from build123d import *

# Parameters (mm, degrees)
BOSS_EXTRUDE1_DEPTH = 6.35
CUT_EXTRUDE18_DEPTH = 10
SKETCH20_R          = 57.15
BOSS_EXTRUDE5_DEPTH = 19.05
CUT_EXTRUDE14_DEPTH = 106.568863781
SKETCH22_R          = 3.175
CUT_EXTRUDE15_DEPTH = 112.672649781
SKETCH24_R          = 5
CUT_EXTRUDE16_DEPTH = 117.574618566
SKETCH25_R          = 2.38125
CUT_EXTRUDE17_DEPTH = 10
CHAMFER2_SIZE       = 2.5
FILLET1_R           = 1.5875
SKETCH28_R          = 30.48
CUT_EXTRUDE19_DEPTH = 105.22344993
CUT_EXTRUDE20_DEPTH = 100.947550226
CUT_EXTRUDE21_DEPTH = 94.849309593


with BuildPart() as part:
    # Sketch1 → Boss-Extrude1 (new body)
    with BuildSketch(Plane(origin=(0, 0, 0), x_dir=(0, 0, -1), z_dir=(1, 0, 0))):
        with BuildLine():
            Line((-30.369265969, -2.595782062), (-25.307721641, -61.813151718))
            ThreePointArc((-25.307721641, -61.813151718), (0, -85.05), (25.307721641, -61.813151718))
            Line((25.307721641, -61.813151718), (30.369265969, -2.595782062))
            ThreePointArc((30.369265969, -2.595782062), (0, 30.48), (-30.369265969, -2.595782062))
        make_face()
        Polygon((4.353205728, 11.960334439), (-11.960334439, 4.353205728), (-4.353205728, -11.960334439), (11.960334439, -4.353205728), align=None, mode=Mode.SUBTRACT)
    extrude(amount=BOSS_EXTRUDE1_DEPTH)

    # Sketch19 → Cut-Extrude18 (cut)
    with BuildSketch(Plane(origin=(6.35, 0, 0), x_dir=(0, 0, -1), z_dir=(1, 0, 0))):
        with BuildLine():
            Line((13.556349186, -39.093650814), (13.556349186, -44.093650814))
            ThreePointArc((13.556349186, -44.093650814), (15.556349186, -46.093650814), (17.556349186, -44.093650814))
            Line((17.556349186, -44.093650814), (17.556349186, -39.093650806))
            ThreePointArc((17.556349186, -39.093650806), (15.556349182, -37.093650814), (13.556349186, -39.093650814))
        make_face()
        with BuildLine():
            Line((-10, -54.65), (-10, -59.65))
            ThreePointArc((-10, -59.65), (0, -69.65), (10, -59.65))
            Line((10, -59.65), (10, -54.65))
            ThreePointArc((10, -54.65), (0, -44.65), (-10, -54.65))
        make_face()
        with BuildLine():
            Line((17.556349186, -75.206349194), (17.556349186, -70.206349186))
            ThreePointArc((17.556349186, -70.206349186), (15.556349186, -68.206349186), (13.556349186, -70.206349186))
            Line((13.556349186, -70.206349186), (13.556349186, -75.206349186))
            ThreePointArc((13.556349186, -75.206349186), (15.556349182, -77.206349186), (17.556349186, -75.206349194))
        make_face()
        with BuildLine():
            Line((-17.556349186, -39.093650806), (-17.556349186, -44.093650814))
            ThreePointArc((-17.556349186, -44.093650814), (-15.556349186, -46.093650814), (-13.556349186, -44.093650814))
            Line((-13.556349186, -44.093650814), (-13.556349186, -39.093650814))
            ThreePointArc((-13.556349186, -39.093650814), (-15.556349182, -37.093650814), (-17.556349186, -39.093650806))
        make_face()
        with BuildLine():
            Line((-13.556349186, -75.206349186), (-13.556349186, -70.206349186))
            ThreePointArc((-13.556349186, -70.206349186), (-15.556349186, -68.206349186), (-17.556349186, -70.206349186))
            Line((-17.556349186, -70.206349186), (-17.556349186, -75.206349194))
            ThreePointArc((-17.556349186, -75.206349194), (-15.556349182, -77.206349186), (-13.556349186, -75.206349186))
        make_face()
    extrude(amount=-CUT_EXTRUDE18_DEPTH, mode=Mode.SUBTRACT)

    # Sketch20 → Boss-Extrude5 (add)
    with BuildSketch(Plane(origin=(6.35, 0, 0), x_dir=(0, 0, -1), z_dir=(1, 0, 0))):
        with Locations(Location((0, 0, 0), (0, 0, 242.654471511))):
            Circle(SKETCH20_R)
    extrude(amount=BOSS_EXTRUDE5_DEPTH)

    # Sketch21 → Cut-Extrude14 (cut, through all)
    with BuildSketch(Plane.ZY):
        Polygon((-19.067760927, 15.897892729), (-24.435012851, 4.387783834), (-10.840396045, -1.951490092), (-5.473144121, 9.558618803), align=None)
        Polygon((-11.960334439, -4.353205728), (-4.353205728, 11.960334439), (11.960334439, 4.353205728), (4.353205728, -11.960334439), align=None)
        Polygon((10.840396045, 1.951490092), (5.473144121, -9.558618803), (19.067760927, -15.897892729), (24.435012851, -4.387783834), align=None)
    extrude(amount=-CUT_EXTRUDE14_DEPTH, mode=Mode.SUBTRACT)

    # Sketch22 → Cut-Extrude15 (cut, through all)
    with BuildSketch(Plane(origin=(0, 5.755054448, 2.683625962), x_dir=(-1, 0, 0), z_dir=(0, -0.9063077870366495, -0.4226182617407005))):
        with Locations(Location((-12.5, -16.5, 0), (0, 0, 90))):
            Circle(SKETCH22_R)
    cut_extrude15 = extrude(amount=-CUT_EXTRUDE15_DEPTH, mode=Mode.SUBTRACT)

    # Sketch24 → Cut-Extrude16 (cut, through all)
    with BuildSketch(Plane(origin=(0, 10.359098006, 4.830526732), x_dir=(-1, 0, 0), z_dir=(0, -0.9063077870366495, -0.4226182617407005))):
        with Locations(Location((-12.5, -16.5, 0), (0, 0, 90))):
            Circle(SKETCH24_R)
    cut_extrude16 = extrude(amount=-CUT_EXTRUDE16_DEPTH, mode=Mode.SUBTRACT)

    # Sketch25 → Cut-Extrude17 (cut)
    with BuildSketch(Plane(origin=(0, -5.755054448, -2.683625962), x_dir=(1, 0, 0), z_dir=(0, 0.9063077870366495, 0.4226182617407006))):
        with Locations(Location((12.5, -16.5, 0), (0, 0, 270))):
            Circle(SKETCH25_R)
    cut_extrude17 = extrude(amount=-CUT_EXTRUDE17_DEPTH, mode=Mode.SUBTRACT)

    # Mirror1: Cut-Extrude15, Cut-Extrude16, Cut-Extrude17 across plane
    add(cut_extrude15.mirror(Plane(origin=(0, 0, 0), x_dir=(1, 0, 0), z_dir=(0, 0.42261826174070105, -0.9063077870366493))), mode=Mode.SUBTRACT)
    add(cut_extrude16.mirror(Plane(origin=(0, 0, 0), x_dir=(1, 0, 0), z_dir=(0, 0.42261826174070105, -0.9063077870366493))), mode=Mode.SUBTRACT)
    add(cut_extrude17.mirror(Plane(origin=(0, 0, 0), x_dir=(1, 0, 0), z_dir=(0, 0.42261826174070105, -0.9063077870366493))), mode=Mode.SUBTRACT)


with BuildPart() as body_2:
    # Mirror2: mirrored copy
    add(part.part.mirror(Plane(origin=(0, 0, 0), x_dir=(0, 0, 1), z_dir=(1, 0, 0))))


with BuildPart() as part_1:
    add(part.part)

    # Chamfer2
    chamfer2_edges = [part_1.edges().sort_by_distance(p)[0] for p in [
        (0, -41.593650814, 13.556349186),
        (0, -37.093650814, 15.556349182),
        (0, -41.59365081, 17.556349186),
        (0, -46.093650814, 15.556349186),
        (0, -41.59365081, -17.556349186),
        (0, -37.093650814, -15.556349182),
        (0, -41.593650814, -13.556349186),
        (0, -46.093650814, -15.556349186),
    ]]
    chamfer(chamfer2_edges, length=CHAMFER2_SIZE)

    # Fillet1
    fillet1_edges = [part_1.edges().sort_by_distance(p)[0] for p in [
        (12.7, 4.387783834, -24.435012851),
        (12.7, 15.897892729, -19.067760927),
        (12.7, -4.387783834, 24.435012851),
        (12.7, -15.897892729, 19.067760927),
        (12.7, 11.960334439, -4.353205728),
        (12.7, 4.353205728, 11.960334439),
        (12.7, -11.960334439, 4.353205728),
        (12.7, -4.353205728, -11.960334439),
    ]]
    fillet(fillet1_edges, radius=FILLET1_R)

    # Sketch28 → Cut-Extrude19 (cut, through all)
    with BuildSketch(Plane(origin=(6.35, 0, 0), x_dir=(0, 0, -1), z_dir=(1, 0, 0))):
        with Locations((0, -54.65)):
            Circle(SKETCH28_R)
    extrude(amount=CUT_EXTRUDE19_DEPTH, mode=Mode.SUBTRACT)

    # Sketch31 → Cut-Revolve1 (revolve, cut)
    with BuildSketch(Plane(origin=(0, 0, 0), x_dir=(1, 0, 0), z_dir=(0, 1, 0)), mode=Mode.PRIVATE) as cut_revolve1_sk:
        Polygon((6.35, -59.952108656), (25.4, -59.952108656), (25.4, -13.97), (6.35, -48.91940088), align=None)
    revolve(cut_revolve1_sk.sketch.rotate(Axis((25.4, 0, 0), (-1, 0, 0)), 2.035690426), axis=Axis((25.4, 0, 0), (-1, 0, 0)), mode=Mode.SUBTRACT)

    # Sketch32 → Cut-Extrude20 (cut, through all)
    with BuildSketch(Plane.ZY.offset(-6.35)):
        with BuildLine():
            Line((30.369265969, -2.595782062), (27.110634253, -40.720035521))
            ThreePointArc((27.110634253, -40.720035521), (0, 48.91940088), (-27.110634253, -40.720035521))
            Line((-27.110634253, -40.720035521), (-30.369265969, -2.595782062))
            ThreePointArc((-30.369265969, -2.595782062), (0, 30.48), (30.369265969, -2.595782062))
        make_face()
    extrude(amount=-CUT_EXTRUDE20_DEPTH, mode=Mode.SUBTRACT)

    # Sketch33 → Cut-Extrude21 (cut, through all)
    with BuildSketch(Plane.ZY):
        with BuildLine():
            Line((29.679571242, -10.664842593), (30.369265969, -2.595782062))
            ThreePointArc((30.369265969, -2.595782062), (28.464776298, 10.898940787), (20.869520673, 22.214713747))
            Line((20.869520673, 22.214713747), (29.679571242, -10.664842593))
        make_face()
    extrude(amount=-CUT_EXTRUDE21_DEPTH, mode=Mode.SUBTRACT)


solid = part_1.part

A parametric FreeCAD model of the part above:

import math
import FreeCAD as App
import Part
import Sketcher
Q = App.Units.Quantity


def edges_at(feature, points):
    """Names of the edges that pass closest to the given points."""
    edges = feature.Shape.Edges
    near = lambda p: min(range(len(edges)), key=lambda i: edges[i].distToShape(Part.Vertex(*p))[0])
    return sorted({f"Edge{near(p) + 1}" for p in points})


def add_polygon(sketch, points):
    """Adds a closed chain of lines whose ends are joined by coincident constraints."""
    first, n = sketch.GeometryCount, len(points)
    for a, b in zip(points, points[1:] + points[:1]):
        sketch.addGeometry(Part.LineSegment(App.Vector(*a, 0), App.Vector(*b, 0)), False)
    for i in range(n):
        sketch.addConstraint(Sketcher.Constraint("Coincident", first + i, 2, first + (i + 1) % n, 1))

doc = App.newDocument("Part")
params = doc.addObject("Spreadsheet::Sheet", "Params")
for row, (alias, value) in enumerate([
    ("sketch1_radius", "1 in"),
    ("sketch1_radius2", "1.2 in"),
    ("pad1_length", "0.25 in"),
    ("pocket1_length", "10 mm"),
    ("sketch3_diameter", "4.5 in"),
    ("pad2_length", "0.75 in"),
    ("sketch4_length", "0.5 in"),
    ("sketch5_diameter", "0.25 in"),
    ("sketch7_diameter", "0.1875 in"),
    ("pocket5_length", "10 mm"),
    ("chamfer_size", "2.5 mm"),
    ("fillet_radius", "0.0625 in"),
    ("sketch8_diameter", "2.4 in"),
    ("sketch9_width", "0.75 in"),
    ("groove_angle", "360 deg"),
    ("sketch10_radius", "1.2 in"),
    ("sketch11_radius", "1.2 in"),
], start=1):
    params.set(f"A{row}", alias)
    params.set(f"B{row}", "=" + value)
    params.setAlias(f"B{row}", alias)

body = doc.addObject("PartDesign::Body", "Body")

# Sketch on YZ plane
sketch1 = body.newObject("Sketcher::SketchObject", "Sketch")
sketch1.AttachmentSupport = (doc.getObject("YZ_Plane"), [""])
sketch1.MapMode = "FlatFace"
sketch1.addGeometry(Part.LineSegment(App.Vector(-3, 30, 0), App.Vector(-62, 25, 0)), False)  # 0
sketch1.addGeometry(Part.ArcOfCircle(Part.Circle(App.Vector(-60, 0, 0), App.Vector(0, 0, 1), 25), math.radians(95), math.radians(265)), False)  # 1
sketch1.addGeometry(Part.LineSegment(App.Vector(-62, -25, 0), App.Vector(-3, -30, 0)), False)  # 2
sketch1.addGeometry(Part.ArcOfCircle(Part.Circle(App.Vector(0, 0, 0), App.Vector(0, 0, 1), 30), math.radians(-95), math.radians(95)), False)  # 3
add_polygon(sketch1, [(4, 12), (12, -4), (-4, -12), (-12, 4)])  # lines 4-7
sketch1.addConstraint(Sketcher.Constraint("Tangent", 0, 2, 1, 1))
sketch1.addConstraint(Sketcher.Constraint("Tangent", 1, 2, 2, 1))
sketch1.addConstraint(Sketcher.Constraint("Tangent", 2, 2, 3, 1))
sketch1.addConstraint(Sketcher.Constraint("Tangent", 3, 2, 0, 1))
sketch1.addConstraint(Sketcher.Constraint("Coincident", 3, 3, -1, 1))
sketch1.addConstraint(Sketcher.Constraint("Symmetric", 4, 2, 6, 2, -1, 1))
sketch1.addConstraint(Sketcher.Constraint("Symmetric", 5, 2, 7, 2, -1, 1))
sketch1.addConstraint(Sketcher.Constraint("PointOnObject", 1, 3, -1))
sketch1.addConstraint(Sketcher.Constraint("Perpendicular", 4, 5))
sketch1.addConstraint(Sketcher.Constraint("Equal", 4, 5))
sketch1.addConstraint(Sketcher.Constraint("Radius", 1, Q("1 in")))
sketch1.addConstraint(Sketcher.Constraint("Radius", 3, Q("1.2 in")))
sketch1.addConstraint(Sketcher.Constraint("Angle", 4, Q("-65 deg")))
sketch1.addConstraint(Sketcher.Constraint("Distance", 4, 18.0))
sketch1.addConstraint(Sketcher.Constraint("DistanceX", 1, 3, -1, 1, 59.65))
sketch1.setExpression("Constraints[14]", "Params.sketch1_radius")
sketch1.setExpression("Constraints[15]", "Params.sketch1_radius2")
pad1 = body.newObject("PartDesign::Pad", "Pad")
pad1.Profile = sketch1
pad1.setExpression("Length", "Params.pad1_length")

# Sketch on YZ plane
sketch2 = body.newObject("Sketcher::SketchObject", "Sketch001")
sketch2.AttachmentSupport = (doc.getObject("YZ_Plane"), [""])
sketch2.MapMode = "FlatFace"
sketch2.AttachmentOffset = App.Placement(App.Vector(0, 0, 0.25 * 25.4), App.Rotation())
sketch2.addGeometry(Part.LineSegment(App.Vector(-39.1, -13.6, 0), App.Vector(-44.1, -13.6, 0)), False)
sketch2.addGeometry(Part.ArcOfCircle(Part.Circle(App.Vector(-44.1, -15.6, 0), App.Vector(0, 0, 1), 2), math.radians(90), math.radians(270)), False)
sketch2.addGeometry(Part.LineSegment(App.Vector(-44.1, -17.6, 0), App.Vector(-39.1, -17.6, 0)), False)
sketch2.addGeometry(Part.ArcOfCircle(Part.Circle(App.Vector(-39.1, -15.6, 0), App.Vector(0, 0, 1), 2), math.radians(-90), math.radians(90)), False)
sketch2.addGeometry(Part.LineSegment(App.Vector(-54.6, 10, 0), App.Vector(-59.6, 10, 0)), False)
sketch2.addGeometry(Part.ArcOfCircle(Part.Circle(App.Vector(-59.6, 0, 0), App.Vector(0, 0, 1), 10), math.radians(90), math.radians(270)), False)
sketch2.addGeometry(Part.LineSegment(App.Vector(-59.6, -10, 0), App.Vector(-54.6, -10, 0)), False)
sketch2.addGeometry(Part.ArcOfCircle(Part.Circle(App.Vector(-54.6, 0, 0), App.Vector(0, 0, 1), 10), math.radians(-90), math.radians(90)), False)
sketch2.addGeometry(Part.LineSegment(App.Vector(-75.2, -17.6, 0), App.Vector(-70.2, -17.6, 0)), False)
sketch2.addGeometry(Part.ArcOfCircle(Part.Circle(App.Vector(-70.2, -15.6, 0), App.Vector(0, 0, 1), 2), math.radians(-90), math.radians(90)), False)
sketch2.addGeometry(Part.LineSegment(App.Vector(-70.2, -13.6, 0), App.Vector(-75.2, -13.6, 0)), False)
sketch2.addGeometry(Part.ArcOfCircle(Part.Circle(App.Vector(-75.2, -15.6, 0), App.Vector(0, 0, 1), 2), math.radians(90), math.radians(270)), False)
sketch2.addGeometry(Part.LineSegment(App.Vector(-39.1, 17.6, 0), App.Vector(-44.1, 17.6, 0)), False)
sketch2.addGeometry(Part.ArcOfCircle(Part.Circle(App.Vector(-44.1, 15.6, 0), App.Vector(0, 0, 1), 2), math.radians(90), math.radians(270)), False)
sketch2.addGeometry(Part.LineSegment(App.Vector(-44.1, 13.6, 0), App.Vector(-39.1, 13.6, 0)), False)
sketch2.addGeometry(Part.ArcOfCircle(Part.Circle(App.Vector(-39.1, 15.6, 0), App.Vector(0, 0, 1), 2), math.radians(-90), math.radians(90)), False)
sketch2.addGeometry(Part.LineSegment(App.Vector(-75.2, 13.6, 0), App.Vector(-70.2, 13.6, 0)), False)
sketch2.addGeometry(Part.ArcOfCircle(Part.Circle(App.Vector(-70.2, 15.6, 0), App.Vector(0, 0, 1), 2), math.radians(-90), math.radians(90)), False)
sketch2.addGeometry(Part.LineSegment(App.Vector(-70.2, 17.6, 0), App.Vector(-75.2, 17.6, 0)), False)
sketch2.addGeometry(Part.ArcOfCircle(Part.Circle(App.Vector(-75.2, 15.6, 0), App.Vector(0, 0, 1), 2), math.radians(90), math.radians(270)), False)
sketch2.addConstraint(Sketcher.Constraint("Tangent", 0, 2, 1, 1))
sketch2.addConstraint(Sketcher.Constraint("Tangent", 1, 2, 2, 1))
sketch2.addConstraint(Sketcher.Constraint("Tangent", 2, 2, 3, 1))
sketch2.addConstraint(Sketcher.Constraint("Tangent", 3, 2, 0, 1))
sketch2.addConstraint(Sketcher.Constraint("Tangent", 4, 2, 5, 1))
sketch2.addConstraint(Sketcher.Constraint("Tangent", 5, 2, 6, 1))
sketch2.addConstraint(Sketcher.Constraint("Tangent", 6, 2, 7, 1))
sketch2.addConstraint(Sketcher.Constraint("Tangent", 7, 2, 4, 1))
sketch2.addConstraint(Sketcher.Constraint("Tangent", 8, 2, 9, 1))
sketch2.addConstraint(Sketcher.Constraint("Tangent", 9, 2, 10, 1))
sketch2.addConstraint(Sketcher.Constraint("Tangent", 10, 2, 11, 1))
sketch2.addConstraint(Sketcher.Constraint("Tangent", 11, 2, 8, 1))
sketch2.addConstraint(Sketcher.Constraint("Tangent", 12, 2, 13, 1))
sketch2.addConstraint(Sketcher.Constraint("Tangent", 13, 2, 14, 1))
sketch2.addConstraint(Sketcher.Constraint("Tangent", 14, 2, 15, 1))
sketch2.addConstraint(Sketcher.Constraint("Tangent", 15, 2, 12, 1))
sketch2.addConstraint(Sketcher.Constraint("Tangent", 16, 2, 17, 1))
sketch2.addConstraint(Sketcher.Constraint("Tangent", 17, 2, 18, 1))
sketch2.addConstraint(Sketcher.Constraint("Tangent", 18, 2, 19, 1))
sketch2.addConstraint(Sketcher.Constraint("Tangent", 19, 2, 16, 1))
sketch2.addConstraint(Sketcher.Constraint("Horizontal", 0))
sketch2.addConstraint(Sketcher.Constraint("Horizontal", 2))
sketch2.addConstraint(Sketcher.Constraint("Horizontal", 4))
sketch2.addConstraint(Sketcher.Constraint("Horizontal", 6))
sketch2.addConstraint(Sketcher.Constraint("Horizontal", 8))
sketch2.addConstraint(Sketcher.Constraint("Horizontal", 10))
sketch2.addConstraint(Sketcher.Constraint("Horizontal", 12))
sketch2.addConstraint(Sketcher.Constraint("Horizontal", 14))
sketch2.addConstraint(Sketcher.Constraint("Horizontal", 16))
sketch2.addConstraint(Sketcher.Constraint("Horizontal", 18))
sketch2.addConstraint(Sketcher.Constraint("Equal", 3, 9))
sketch2.addConstraint(Sketcher.Constraint("Equal", 11, 13))
sketch2.addConstraint(Sketcher.Constraint("Equal", 15, 17))
sketch2.addConstraint(Sketcher.Constraint("Symmetric", 1, 3, 13, 3, -1))
sketch2.addConstraint(Sketcher.Constraint("Symmetric", 9, 3, 17, 3, -1))
sketch2.addConstraint(Sketcher.Constraint("PointOnObject", 5, 3, -1))
sketch2.addConstraint(Sketcher.Constraint("Horizontal", 3, 3, 9, 3))
sketch2.addConstraint(Sketcher.Constraint("Vertical", 3, 3, 15, 3))
sketch2.addConstraint(Sketcher.Constraint("Vertical", 11, 3, 19, 3))
sketch2.addConstraint(Sketcher.Constraint("Equal", 2, 4))
sketch2.addConstraint(Sketcher.Constraint("Equal", 6, 8))
sketch2.addConstraint(Sketcher.Constraint("Radius", 1, 2.0))
sketch2.addConstraint(Sketcher.Constraint("Radius", 5, 10.0))
sketch2.addConstraint(Sketcher.Constraint("DistanceX", 0, 2, 0, 1, 5.0))
sketch2.addConstraint(Sketcher.Constraint("DistanceX", 5, 3, -1, 1, 59.65))
sketch2.addConstraint(Sketcher.Constraint("DistanceX", 9, 3, 1, 3, 26.112698))
sketch2.addConstraint(Sketcher.Constraint("DistanceY", 1, 3, 13, 3, 31.112698))
sketch2.addConstraint(Sketcher.Constraint("DistanceX", 1, 3, -1, 1, 44.093651))
pocket1 = body.newObject("PartDesign::Pocket", "Pocket")
pocket1.Profile = sketch2
pocket1.setExpression("Length", "Params.pocket1_length")

# Sketch on YZ plane
sketch3 = body.newObject("Sketcher::SketchObject", "Sketch002")
sketch3.AttachmentSupport = (doc.getObject("YZ_Plane"), [""])
sketch3.MapMode = "FlatFace"
sketch3.AttachmentOffset = App.Placement(App.Vector(0, 0, 0.25 * 25.4), App.Rotation())
sketch3.addGeometry(Part.Circle(App.Vector(0, 0, 0), App.Vector(0, 0, 1), 57), False)
sketch3.addConstraint(Sketcher.Constraint("Coincident", 0, 3, -1, 1))
sketch3.addConstraint(Sketcher.Constraint("Diameter", 0, Q("4.5 in")))
sketch3.setExpression("Constraints[1]", "Params.sketch3_diameter")
pad2 = body.newObject("PartDesign::Pad", "Pad001")
pad2.Profile = sketch3
pad2.setExpression("Length", "Params.pad2_length")

# Sketch on YZ plane
sketch4 = body.newObject("Sketcher::SketchObject", "Sketch003")
sketch4.AttachmentSupport = (doc.getObject("YZ_Plane"), [""])
sketch4.MapMode = "FlatFace"
add_polygon(sketch4, [(15.9, -19.1), (4.4, -24.4), (-2, -10.8), (-4.4, -12), (-12, 4.4), (-9.6, 5.5), (-15.9, 19.1), (-4.4, 24.4), (2, 10.8), (4.4, 12), (12, -4.4), (9.6, -5.5)])  # lines 0-11
sketch4.addConstraint(Sketcher.Constraint("Symmetric", 0, 2, 6, 2, -1, 1))
sketch4.addConstraint(Sketcher.Constraint("Symmetric", 1, 2, 7, 2, -1, 1))
sketch4.addConstraint(Sketcher.Constraint("Symmetric", 2, 2, 8, 2, -1, 1))
sketch4.addConstraint(Sketcher.Constraint("Symmetric", 3, 2, 9, 2, -1, 1))
sketch4.addConstraint(Sketcher.Constraint("Symmetric", 4, 2, 10, 2, -1, 1))
sketch4.addConstraint(Sketcher.Constraint("Symmetric", 5, 2, 11, 2, -1, 1))
sketch4.addConstraint(Sketcher.Constraint("Perpendicular", 0, 1))
sketch4.addConstraint(Sketcher.Constraint("Perpendicular", 1, 2))
sketch4.addConstraint(Sketcher.Constraint("Perpendicular", 2, 3))
sketch4.addConstraint(Sketcher.Constraint("Perpendicular", 3, 4))
sketch4.addConstraint(Sketcher.Constraint("Perpendicular", 4, 5))
sketch4.addConstraint(Sketcher.Constraint("Equal", 2, 4))
sketch4.addConstraint(Sketcher.Constraint("Equal", 1, 5))
sketch4.addConstraint(Sketcher.Constraint("Angle", 0, Q("-155 deg")))
sketch4.addConstraint(Sketcher.Constraint("Distance", 0, Q("0.5 in")))
sketch4.addConstraint(Sketcher.Constraint("Distance", 1, 15.0))
sketch4.addConstraint(Sketcher.Constraint("Distance", 2, 2.65))
sketch4.addConstraint(Sketcher.Constraint("Distance", 3, 18.0))
sketch4.setExpression("Constraints[26]", "Params.sketch4_length")
pocket2 = body.newObject("PartDesign::Pocket", "Pocket001")
pocket2.Profile = sketch4
pocket2.Type = "ThroughAll"
pocket2.Reversed = True

# Sketch on an angled plane
sketch5 = body.newObject("Sketcher::SketchObject", "Sketch004")
sketch5.Placement = App.Placement(App.Vector(0, 5.755054, 2.683626), App.Rotation(App.Vector(-1, 0, 0), App.Vector(0, 0.422618262, -0.906307787), App.Vector(0, -0.906307787, -0.422618262), "ZXY"))
sketch5.addGeometry(Part.Circle(App.Vector(-12.5, -16.5, 0), App.Vector(0, 0, 1), 3.2), False)
sketch5.addConstraint(Sketcher.Constraint("Diameter", 0, Q("0.25 in")))
sketch5.addConstraint(Sketcher.Constraint("DistanceX", 0, 3, -1, 1, 12.5))
sketch5.addConstraint(Sketcher.Constraint("DistanceY", 0, 3, -1, 1, 16.5))
sketch5.setExpression("Constraints[0]", "Params.sketch5_diameter")
pocket3 = body.newObject("PartDesign::Pocket", "Pocket002")
pocket3.Profile = sketch5
pocket3.Type = "ThroughAll"

# Sketch on an angled plane
sketch6 = body.newObject("Sketcher::SketchObject", "Sketch005")
sketch6.Placement = App.Placement(App.Vector(0, 10.359098, 4.830527), App.Rotation(App.Vector(-1, 0, 0), App.Vector(0, 0.422618262, -0.906307787), App.Vector(0, -0.906307787, -0.422618262), "ZXY"))
sketch6.addGeometry(Part.Circle(App.Vector(-12, -17, 0), App.Vector(0, 0, 1), 5), False)
sketch6.addConstraint(Sketcher.Constraint("Diameter", 0, 10.0))
sketch6.addConstraint(Sketcher.Constraint("DistanceX", 0, 3, -1, 1, 12.5))
sketch6.addConstraint(Sketcher.Constraint("DistanceY", 0, 3, -1, 1, 16.5))
pocket4 = body.newObject("PartDesign::Pocket", "Pocket003")
pocket4.Profile = sketch6
pocket4.Type = "ThroughAll"

# Sketch on an angled plane
sketch7 = body.newObject("Sketcher::SketchObject", "Sketch006")
sketch7.Placement = App.Placement(App.Vector(0, -5.755054, -2.683626), App.Rotation(App.Vector(1, 0, 0), App.Vector(0, 0.422618262, -0.906307787), App.Vector(0, 0.906307787, 0.422618262), "ZXY"))
sketch7.addGeometry(Part.Circle(App.Vector(12.5, -16.5, 0), App.Vector(0, 0, 1), 2.4), False)
sketch7.addConstraint(Sketcher.Constraint("Diameter", 0, Q("0.1875 in")))
sketch7.addConstraint(Sketcher.Constraint("DistanceX", -1, 1, 0, 3, 12.5))
sketch7.addConstraint(Sketcher.Constraint("DistanceY", 0, 3, -1, 1, 16.5))
sketch7.setExpression("Constraints[0]", "Params.sketch7_diameter")
pocket5 = body.newObject("PartDesign::Pocket", "Pocket004")
pocket5.Profile = sketch7
pocket5.setExpression("Length", "Params.pocket5_length")
doc.recompute()

datumplane = body.newObject("PartDesign::Plane", "DatumPlane")
datumplane.Placement = App.Placement(App.Vector(0, 0, 0), App.Rotation(App.Vector(0, -0.906307787, -0.422618262), App.Vector(-1, 0, 0), App.Vector(0, 0.422618262, -0.906307787), "ZXY"))
mirrored = body.newObject("PartDesign::Mirrored", "Mirrored")
mirrored.Originals = [pocket3, pocket4, pocket5]
mirrored.MirrorPlane = (datumplane, [""])
body.Tip = mirrored
body2 = doc.addObject("PartDesign::Body", "Body001")
doc.recompute()

mirroring = doc.addObject("Part::Mirroring", "Mirroring")
mirroring.Source = body
mirroring.Base = App.Vector(0, 0, 0)
mirroring.Normal = App.Vector(1, 0, 0)
body2.BaseFeature = mirroring
doc.recompute()

chamfer = body.newObject("PartDesign::Chamfer", "Chamfer")
chamfer.Base = (mirrored, edges_at(mirrored, [
    (0, -41.594, 13.556),
    (0, -37.094, 15.556),
    (0, -41.594, 17.556),
    (0, -46.094, 15.556),
    (0, -41.594, -17.556),
    (0, -37.094, -15.556),
    (0, -41.594, -13.556),
    (0, -46.094, -15.556),
]))
chamfer.setExpression("Size", "Params.chamfer_size")
doc.recompute()

fillet = body.newObject("PartDesign::Fillet", "Fillet")
fillet.Base = (chamfer, edges_at(chamfer, [
    (12.7, 4.388, -24.435),
    (12.7, 15.898, -19.068),
    (12.7, -4.388, 24.435),
    (12.7, -15.898, 19.068),
    (12.7, 11.96, -4.353),
    (12.7, 4.353, 11.96),
    (12.7, -11.96, 4.353),
    (12.7, -4.353, -11.96),
]))
fillet.setExpression("Radius", "Params.fillet_radius")

# Sketch on YZ plane
sketch8 = body.newObject("Sketcher::SketchObject", "Sketch007")
sketch8.AttachmentSupport = (doc.getObject("YZ_Plane"), [""])
sketch8.MapMode = "FlatFace"
sketch8.AttachmentOffset = App.Placement(App.Vector(0, 0, 0.25 * 25.4), App.Rotation())
sketch8.addGeometry(Part.Circle(App.Vector(-55, 0, 0), App.Vector(0, 0, 1), 30), False)
sketch8.addConstraint(Sketcher.Constraint("PointOnObject", 0, 3, -1))
sketch8.addConstraint(Sketcher.Constraint("Diameter", 0, Q("2.4 in")))
sketch8.addConstraint(Sketcher.Constraint("DistanceX", 0, 3, -1, 1, 54.65))
sketch8.setExpression("Constraints[1]", "Params.sketch8_diameter")
pocket6 = body.newObject("PartDesign::Pocket", "Pocket005")
pocket6.Profile = sketch8
pocket6.Type = "ThroughAll"
pocket6.Reversed = True

# Sketch on XZ plane
sketch9 = body.newObject("Sketcher::SketchObject", "Sketch008")
sketch9.AttachmentSupport = (doc.getObject("XZ_Plane"), [""])
sketch9.MapMode = "FlatFace"
add_polygon(sketch9, [(6, 60), (25, 60), (25, 14), (6, 49)])  # lines 0-3
sketch9.addConstraint(Sketcher.Constraint("Horizontal", 0))
sketch9.addConstraint(Sketcher.Constraint("Vertical", 1))
sketch9.addConstraint(Sketcher.Constraint("Vertical", 3))
sketch9.addConstraint(Sketcher.Constraint("DistanceX", -1, 1, 0, 2, Q("1 in")))
sketch9.addConstraint(Sketcher.Constraint("DistanceX", 0, 1, 0, 2, Q("0.75 in")))
sketch9.addConstraint(Sketcher.Constraint("DistanceY", -1, 1, 1, 2, Q("0.55 in")))
sketch9.addConstraint(Sketcher.Constraint("DistanceY", 1, 2, 1, 1, 45.982109))
sketch9.addConstraint(Sketcher.Constraint("DistanceY", -1, 1, 2, 2, 48.919401))
sketch9.setExpression("Constraints[8]", "Params.sketch9_width")
groove = body.newObject("PartDesign::Groove", "Groove")
groove.Profile = sketch9
groove.ReferenceAxis = (sketch9, ["H_Axis"])
groove.setExpression("Angle", "Params.groove_angle")

# Sketch on YZ plane
sketch10 = body.newObject("Sketcher::SketchObject", "Sketch009")
sketch10.AttachmentSupport = (doc.getObject("YZ_Plane"), [""])
sketch10.MapMode = "FlatFace"
sketch10.AttachmentOffset = App.Placement(App.Vector(0, 0, 0.25 * 25.4), App.Rotation())
sketch10.addGeometry(Part.LineSegment(App.Vector(-3, 30, 0), App.Vector(-41, 27, 0)), False)
sketch10.addGeometry(Part.ArcOfCircle(Part.Circle(App.Vector(0, 0, 0), App.Vector(0, 0, 1), 49), math.radians(-146), math.radians(146)), False)
sketch10.addGeometry(Part.LineSegment(App.Vector(-41, -27, 0), App.Vector(-3, -30, 0)), False)
sketch10.addGeometry(Part.ArcOfCircle(Part.Circle(App.Vector(0, 0, 0), App.Vector(0, 0, 1), 30), math.radians(-95), math.radians(95)), False)
sketch10.addConstraint(Sketcher.Constraint("Coincident", 0, 2, 1, 2))
sketch10.addConstraint(Sketcher.Constraint("Coincident", 1, 1, 2, 1))
sketch10.addConstraint(Sketcher.Constraint("Tangent", 2, 2, 3, 1))
sketch10.addConstraint(Sketcher.Constraint("Tangent", 3, 2, 0, 1))
sketch10.addConstraint(Sketcher.Constraint("Coincident", 1, 3, -1, 1))
sketch10.addConstraint(Sketcher.Constraint("Coincident", 3, 3, -1, 1))
sketch10.addConstraint(Sketcher.Constraint("Vertical", 0, 2, 1, 1))
sketch10.addConstraint(Sketcher.Constraint("Radius", 3, Q("1.2 in")))
sketch10.addConstraint(Sketcher.Constraint("Radius", 1, 48.919401))
sketch10.addConstraint(Sketcher.Constraint("DistanceY", 2, 2, 0, 2, 57.4799))
sketch10.setExpression("Constraints[7]", "Params.sketch10_radius")
pocket7 = body.newObject("PartDesign::Pocket", "Pocket006")
pocket7.Profile = sketch10
pocket7.Type = "ThroughAll"
pocket7.Reversed = True

# Sketch on YZ plane
sketch11 = body.newObject("Sketcher::SketchObject", "Sketch010")
sketch11.AttachmentSupport = (doc.getObject("YZ_Plane"), [""])
sketch11.MapMode = "FlatFace"
sketch11.addGeometry(Part.LineSegment(App.Vector(-11, 30, 0), App.Vector(-3, 30, 0)), False)
sketch11.addGeometry(Part.ArcOfCircle(Part.Circle(App.Vector(0, 0, 0), App.Vector(0, 0, 1), 30), math.radians(43), math.radians(95)), False)
sketch11.addGeometry(Part.LineSegment(App.Vector(22, 21, 0), App.Vector(-11, 30, 0)), False)
sketch11.addConstraint(Sketcher.Constraint("Tangent", 0, 2, 1, 2))
sketch11.addConstraint(Sketcher.Constraint("Coincident", 1, 1, 2, 1))
sketch11.addConstraint(Sketcher.Constraint("Coincident", 2, 2, 0, 1))
sketch11.addConstraint(Sketcher.Constraint("Coincident", 1, 3, -1, 1))
sketch11.addConstraint(Sketcher.Constraint("Radius", 1, Q("1.2 in")))
sketch11.addConstraint(Sketcher.Constraint("Angle", 2, Q("165 deg")))
sketch11.addConstraint(Sketcher.Constraint("Distance", 2, 34.039422))
sketch11.addConstraint(Sketcher.Constraint("DistanceY", -1, 1, 1, 1, 20.869521))
sketch11.setExpression("Constraints[4]", "Params.sketch11_radius")
pocket8 = body.newObject("PartDesign::Pocket", "Pocket007")
pocket8.Profile = sketch11
pocket8.Type = "ThroughAll"
pocket8.Reversed = True
body2.Visibility = False
mirroring.Visibility = False

doc.recompute()
